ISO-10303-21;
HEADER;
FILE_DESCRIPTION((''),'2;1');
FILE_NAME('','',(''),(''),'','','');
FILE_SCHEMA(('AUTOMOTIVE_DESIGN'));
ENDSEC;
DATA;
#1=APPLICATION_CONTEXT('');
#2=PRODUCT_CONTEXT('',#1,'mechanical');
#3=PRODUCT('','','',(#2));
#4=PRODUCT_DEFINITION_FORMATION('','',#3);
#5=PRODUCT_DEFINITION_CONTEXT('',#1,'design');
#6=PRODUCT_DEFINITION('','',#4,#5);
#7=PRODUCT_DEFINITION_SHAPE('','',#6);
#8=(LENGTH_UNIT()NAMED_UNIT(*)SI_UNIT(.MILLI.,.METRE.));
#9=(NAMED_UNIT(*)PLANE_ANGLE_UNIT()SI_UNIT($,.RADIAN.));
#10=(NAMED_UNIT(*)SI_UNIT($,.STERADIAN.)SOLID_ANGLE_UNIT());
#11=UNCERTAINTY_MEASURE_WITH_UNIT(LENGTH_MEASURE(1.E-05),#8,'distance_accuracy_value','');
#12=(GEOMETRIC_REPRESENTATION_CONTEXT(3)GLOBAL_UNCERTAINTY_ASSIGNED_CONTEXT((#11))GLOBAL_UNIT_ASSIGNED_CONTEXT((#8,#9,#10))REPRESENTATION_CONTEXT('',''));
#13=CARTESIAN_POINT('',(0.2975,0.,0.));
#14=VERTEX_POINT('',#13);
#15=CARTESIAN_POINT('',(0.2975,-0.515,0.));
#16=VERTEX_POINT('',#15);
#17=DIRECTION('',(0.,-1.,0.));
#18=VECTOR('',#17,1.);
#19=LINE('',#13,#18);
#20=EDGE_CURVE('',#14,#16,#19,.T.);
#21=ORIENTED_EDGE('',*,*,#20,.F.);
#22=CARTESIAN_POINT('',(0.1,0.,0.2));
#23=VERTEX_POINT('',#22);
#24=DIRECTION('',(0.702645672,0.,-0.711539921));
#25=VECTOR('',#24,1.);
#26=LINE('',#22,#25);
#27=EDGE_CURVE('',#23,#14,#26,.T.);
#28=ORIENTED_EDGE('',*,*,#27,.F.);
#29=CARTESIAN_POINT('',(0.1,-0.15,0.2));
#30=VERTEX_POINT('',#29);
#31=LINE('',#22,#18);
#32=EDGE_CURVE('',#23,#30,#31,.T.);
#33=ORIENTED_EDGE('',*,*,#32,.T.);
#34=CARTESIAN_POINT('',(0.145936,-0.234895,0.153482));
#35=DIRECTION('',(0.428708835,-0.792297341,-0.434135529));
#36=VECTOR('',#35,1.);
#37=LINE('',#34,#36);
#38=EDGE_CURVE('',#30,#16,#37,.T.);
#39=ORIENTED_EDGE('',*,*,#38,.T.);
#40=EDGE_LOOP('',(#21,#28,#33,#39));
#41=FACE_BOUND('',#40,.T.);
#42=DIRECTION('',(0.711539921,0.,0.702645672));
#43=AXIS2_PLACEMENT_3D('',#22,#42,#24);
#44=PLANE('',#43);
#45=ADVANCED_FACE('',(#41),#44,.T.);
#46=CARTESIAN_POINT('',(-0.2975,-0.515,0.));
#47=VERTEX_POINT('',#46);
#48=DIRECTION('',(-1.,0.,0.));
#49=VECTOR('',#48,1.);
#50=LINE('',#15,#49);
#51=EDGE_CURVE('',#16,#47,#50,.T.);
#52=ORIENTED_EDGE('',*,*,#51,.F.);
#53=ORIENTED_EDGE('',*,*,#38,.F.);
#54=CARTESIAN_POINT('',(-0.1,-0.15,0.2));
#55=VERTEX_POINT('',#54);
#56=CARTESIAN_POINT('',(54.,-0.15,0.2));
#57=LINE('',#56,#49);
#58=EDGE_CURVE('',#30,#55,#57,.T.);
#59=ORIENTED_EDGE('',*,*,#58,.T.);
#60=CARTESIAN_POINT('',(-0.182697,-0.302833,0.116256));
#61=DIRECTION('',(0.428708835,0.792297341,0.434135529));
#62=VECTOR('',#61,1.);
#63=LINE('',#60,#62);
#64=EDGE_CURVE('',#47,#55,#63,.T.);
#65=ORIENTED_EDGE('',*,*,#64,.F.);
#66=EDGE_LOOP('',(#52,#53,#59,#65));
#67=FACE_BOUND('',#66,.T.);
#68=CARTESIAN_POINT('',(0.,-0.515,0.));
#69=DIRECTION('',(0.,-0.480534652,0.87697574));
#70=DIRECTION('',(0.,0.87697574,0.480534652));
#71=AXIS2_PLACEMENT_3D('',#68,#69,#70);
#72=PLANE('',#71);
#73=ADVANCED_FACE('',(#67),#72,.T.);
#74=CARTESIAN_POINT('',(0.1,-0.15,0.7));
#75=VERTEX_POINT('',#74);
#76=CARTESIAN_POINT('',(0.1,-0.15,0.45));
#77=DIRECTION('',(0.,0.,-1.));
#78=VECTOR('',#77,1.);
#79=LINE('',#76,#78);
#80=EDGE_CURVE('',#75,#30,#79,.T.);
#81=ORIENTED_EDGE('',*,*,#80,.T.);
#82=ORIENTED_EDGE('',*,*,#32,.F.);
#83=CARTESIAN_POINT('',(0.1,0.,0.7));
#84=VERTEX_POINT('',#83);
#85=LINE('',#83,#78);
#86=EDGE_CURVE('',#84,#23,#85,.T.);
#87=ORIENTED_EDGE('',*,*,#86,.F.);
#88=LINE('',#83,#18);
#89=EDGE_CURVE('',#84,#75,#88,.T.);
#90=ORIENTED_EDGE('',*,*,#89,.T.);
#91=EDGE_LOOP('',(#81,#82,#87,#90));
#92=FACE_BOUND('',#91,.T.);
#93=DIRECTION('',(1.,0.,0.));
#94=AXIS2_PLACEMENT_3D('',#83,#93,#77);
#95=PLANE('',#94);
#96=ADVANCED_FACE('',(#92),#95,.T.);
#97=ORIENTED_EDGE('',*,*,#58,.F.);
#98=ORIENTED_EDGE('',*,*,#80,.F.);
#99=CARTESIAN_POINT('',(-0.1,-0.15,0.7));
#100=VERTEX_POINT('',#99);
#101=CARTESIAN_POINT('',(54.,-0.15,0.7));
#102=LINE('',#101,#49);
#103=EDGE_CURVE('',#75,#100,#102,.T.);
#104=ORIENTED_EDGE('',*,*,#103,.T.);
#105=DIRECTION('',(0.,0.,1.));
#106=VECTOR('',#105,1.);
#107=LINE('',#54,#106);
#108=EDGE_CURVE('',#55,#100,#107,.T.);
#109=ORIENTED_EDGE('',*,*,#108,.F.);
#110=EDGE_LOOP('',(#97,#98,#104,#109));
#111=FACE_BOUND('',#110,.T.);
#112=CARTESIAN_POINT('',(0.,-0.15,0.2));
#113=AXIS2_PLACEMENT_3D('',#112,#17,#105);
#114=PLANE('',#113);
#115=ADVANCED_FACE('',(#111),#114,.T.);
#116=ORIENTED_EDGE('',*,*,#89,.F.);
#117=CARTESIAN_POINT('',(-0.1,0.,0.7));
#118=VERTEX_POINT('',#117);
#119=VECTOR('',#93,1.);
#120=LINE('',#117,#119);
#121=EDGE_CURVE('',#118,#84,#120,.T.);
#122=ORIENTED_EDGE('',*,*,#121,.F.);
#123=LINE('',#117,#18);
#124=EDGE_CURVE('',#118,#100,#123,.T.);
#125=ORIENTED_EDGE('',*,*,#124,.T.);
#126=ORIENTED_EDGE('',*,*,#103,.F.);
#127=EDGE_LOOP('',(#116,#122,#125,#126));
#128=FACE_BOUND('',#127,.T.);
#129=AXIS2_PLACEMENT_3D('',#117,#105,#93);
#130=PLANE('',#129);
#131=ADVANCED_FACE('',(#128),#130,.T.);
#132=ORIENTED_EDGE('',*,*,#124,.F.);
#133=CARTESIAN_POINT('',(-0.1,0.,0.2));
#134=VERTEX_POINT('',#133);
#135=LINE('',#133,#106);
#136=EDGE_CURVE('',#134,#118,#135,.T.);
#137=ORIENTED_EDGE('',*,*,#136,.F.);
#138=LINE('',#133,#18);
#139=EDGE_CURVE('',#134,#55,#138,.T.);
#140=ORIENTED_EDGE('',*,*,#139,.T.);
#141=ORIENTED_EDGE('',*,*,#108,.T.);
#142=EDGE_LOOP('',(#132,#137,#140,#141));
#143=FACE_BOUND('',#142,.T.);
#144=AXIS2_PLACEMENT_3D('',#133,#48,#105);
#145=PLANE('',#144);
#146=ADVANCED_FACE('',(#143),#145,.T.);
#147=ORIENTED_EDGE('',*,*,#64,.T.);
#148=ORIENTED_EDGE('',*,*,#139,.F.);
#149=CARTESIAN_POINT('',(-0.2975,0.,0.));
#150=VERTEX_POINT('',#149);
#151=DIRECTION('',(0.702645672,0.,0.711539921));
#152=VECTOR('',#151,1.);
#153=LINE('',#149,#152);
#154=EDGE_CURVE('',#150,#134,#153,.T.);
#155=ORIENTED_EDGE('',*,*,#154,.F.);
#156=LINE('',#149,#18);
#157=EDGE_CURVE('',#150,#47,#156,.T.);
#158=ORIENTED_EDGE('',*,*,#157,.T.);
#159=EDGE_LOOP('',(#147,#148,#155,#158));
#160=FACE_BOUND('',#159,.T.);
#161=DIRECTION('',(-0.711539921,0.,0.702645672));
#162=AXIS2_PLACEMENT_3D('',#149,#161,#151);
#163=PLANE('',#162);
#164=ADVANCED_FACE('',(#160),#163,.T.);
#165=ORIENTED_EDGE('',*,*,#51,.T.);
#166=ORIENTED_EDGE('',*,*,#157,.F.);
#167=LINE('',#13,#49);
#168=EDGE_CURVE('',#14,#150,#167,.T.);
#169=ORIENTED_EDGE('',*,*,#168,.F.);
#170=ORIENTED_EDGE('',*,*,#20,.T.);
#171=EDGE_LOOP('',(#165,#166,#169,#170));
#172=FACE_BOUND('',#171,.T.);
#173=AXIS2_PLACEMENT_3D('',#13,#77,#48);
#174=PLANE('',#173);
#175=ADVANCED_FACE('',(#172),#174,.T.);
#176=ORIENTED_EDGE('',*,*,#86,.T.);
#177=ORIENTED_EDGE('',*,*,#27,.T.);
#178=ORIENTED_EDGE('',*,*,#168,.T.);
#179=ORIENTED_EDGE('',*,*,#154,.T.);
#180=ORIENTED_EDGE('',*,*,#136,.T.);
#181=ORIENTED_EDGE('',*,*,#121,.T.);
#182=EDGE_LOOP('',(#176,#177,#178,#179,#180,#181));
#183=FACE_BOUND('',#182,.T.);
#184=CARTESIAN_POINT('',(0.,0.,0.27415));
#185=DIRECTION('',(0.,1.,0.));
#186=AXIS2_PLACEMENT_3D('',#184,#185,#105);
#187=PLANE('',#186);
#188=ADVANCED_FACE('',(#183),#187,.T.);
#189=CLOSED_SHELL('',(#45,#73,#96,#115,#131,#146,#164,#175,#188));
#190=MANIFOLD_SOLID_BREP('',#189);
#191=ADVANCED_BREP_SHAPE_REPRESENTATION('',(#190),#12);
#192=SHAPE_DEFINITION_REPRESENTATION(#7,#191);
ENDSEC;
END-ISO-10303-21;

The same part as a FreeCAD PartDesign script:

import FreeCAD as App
import Part
import Sketcher
from FreeCAD import Vector
Q = App.Units.Quantity


def add_polygon(sketch, points):
    """Adds a closed chain of lines whose ends are joined by coincident constraints."""
    first, n = sketch.GeometryCount, len(points)
    for a, b in zip(points, points[1:] + points[:1]):
        sketch.addGeometry(Part.LineSegment(App.Vector(*a, 0), App.Vector(*b, 0)), False)
    for i in range(n):
        sketch.addConstraint(Sketcher.Constraint("Coincident", first + i, 2, first + (i + 1) % n, 1))

doc = App.newDocument("Part")
params = doc.addObject("Spreadsheet::Sheet", "Params")
for row, (alias, value) in enumerate([
    ("sketch1_height", "0.5 mm"),
    ("pad1_length", "0.515 mm"),
    ("sketch2_height", "0.7 mm"),
    ("sketch2_height2", "0.5 mm"),
], start=1):
    params.set(f"A{row}", alias)
    params.set(f"B{row}", "=" + value)
    params.setAlias(f"B{row}", alias)

body = doc.addObject("PartDesign::Body", "Body")

sketch1 = body.newObject("Sketcher::SketchObject", "Sketch")
sketch1.AttachmentSupport = (doc.getObject("XZ_Plane"), [""])
sketch1.MapMode = "FlatFace"
add_polygon(sketch1, [(0.1, 0.7), (-0.1, 0.7), (-0.1, 0.2), (-0.3, 0), (0.3, 0), (0.1, 0.2)])
sketch1.addConstraint([
    Sketcher.Constraint("Horizontal", 0),
    Sketcher.Constraint("Vertical", 1),
    Sketcher.Constraint("Horizontal", 3),
    Sketcher.Constraint("Vertical", 5),
    Sketcher.Constraint("Symmetric", 2, 2, 3, 2, -1, 1),
    Sketcher.Constraint("Symmetric", 1, 2, 4, 2, -2),
    Sketcher.Constraint("DistanceX", 0, 2, -1, 1, Q("0.1 mm")),
    Sketcher.Constraint("DistanceY", 1, 2, 1, 1, Q("0.5 mm")),
    Sketcher.Constraint("DistanceX", 2, 2, -1, 1, Q("0.2975 mm")),
    Sketcher.Constraint("DistanceY", -1, 1, 0, 2, Q("0.7 mm")),
])
sketch1.setExpression("Constraints[13]", "Params.sketch1_height")
pad1 = body.newObject("PartDesign::Pad", "Pad")
pad1.Profile = sketch1
pad1.setExpression("Length", "Params.pad1_length")

sketch2 = body.newObject("Sketcher::SketchObject", "Sketch001")
sketch2.AttachmentSupport = (doc.getObject("YZ_Plane"), [""])
sketch2.MapMode = "FlatFace"
add_polygon(sketch2, [(-0.15, 0.7), (-0.52, 0.7), (-0.52, 0), (-0.15, 0.2)])
sketch2.addConstraint([
    Sketcher.Constraint("Horizontal", 0),
    Sketcher.Constraint("Vertical", 1),
    Sketcher.Constraint("Vertical", 3),
    Sketcher.Constraint("PointOnObject", 1, 2, -1),
    Sketcher.Constraint("DistanceY", 1, 2, 1, 1, Q("0.7 mm")),
    Sketcher.Constraint("DistanceY", 3, 1, 3, 2, Q("0.5 mm")),
    Sketcher.Constraint("Angle", 2, Q("28.7203 deg")),
    Sketcher.Constraint("DistanceX", 2, 2, -1, 1, Q("0.15 mm")),
])
sketch2.setExpression("Constraints[8]", "Params.sketch2_height")
sketch2.setExpression("Constraints[9]", "Params.sketch2_height2")
pocket1 = body.newObject("PartDesign::Pocket", "Pocket")
pocket1.Profile = sketch2
pocket1.Type = "ThroughAll"
pocket1.Midplane = True

doc.recompute()
